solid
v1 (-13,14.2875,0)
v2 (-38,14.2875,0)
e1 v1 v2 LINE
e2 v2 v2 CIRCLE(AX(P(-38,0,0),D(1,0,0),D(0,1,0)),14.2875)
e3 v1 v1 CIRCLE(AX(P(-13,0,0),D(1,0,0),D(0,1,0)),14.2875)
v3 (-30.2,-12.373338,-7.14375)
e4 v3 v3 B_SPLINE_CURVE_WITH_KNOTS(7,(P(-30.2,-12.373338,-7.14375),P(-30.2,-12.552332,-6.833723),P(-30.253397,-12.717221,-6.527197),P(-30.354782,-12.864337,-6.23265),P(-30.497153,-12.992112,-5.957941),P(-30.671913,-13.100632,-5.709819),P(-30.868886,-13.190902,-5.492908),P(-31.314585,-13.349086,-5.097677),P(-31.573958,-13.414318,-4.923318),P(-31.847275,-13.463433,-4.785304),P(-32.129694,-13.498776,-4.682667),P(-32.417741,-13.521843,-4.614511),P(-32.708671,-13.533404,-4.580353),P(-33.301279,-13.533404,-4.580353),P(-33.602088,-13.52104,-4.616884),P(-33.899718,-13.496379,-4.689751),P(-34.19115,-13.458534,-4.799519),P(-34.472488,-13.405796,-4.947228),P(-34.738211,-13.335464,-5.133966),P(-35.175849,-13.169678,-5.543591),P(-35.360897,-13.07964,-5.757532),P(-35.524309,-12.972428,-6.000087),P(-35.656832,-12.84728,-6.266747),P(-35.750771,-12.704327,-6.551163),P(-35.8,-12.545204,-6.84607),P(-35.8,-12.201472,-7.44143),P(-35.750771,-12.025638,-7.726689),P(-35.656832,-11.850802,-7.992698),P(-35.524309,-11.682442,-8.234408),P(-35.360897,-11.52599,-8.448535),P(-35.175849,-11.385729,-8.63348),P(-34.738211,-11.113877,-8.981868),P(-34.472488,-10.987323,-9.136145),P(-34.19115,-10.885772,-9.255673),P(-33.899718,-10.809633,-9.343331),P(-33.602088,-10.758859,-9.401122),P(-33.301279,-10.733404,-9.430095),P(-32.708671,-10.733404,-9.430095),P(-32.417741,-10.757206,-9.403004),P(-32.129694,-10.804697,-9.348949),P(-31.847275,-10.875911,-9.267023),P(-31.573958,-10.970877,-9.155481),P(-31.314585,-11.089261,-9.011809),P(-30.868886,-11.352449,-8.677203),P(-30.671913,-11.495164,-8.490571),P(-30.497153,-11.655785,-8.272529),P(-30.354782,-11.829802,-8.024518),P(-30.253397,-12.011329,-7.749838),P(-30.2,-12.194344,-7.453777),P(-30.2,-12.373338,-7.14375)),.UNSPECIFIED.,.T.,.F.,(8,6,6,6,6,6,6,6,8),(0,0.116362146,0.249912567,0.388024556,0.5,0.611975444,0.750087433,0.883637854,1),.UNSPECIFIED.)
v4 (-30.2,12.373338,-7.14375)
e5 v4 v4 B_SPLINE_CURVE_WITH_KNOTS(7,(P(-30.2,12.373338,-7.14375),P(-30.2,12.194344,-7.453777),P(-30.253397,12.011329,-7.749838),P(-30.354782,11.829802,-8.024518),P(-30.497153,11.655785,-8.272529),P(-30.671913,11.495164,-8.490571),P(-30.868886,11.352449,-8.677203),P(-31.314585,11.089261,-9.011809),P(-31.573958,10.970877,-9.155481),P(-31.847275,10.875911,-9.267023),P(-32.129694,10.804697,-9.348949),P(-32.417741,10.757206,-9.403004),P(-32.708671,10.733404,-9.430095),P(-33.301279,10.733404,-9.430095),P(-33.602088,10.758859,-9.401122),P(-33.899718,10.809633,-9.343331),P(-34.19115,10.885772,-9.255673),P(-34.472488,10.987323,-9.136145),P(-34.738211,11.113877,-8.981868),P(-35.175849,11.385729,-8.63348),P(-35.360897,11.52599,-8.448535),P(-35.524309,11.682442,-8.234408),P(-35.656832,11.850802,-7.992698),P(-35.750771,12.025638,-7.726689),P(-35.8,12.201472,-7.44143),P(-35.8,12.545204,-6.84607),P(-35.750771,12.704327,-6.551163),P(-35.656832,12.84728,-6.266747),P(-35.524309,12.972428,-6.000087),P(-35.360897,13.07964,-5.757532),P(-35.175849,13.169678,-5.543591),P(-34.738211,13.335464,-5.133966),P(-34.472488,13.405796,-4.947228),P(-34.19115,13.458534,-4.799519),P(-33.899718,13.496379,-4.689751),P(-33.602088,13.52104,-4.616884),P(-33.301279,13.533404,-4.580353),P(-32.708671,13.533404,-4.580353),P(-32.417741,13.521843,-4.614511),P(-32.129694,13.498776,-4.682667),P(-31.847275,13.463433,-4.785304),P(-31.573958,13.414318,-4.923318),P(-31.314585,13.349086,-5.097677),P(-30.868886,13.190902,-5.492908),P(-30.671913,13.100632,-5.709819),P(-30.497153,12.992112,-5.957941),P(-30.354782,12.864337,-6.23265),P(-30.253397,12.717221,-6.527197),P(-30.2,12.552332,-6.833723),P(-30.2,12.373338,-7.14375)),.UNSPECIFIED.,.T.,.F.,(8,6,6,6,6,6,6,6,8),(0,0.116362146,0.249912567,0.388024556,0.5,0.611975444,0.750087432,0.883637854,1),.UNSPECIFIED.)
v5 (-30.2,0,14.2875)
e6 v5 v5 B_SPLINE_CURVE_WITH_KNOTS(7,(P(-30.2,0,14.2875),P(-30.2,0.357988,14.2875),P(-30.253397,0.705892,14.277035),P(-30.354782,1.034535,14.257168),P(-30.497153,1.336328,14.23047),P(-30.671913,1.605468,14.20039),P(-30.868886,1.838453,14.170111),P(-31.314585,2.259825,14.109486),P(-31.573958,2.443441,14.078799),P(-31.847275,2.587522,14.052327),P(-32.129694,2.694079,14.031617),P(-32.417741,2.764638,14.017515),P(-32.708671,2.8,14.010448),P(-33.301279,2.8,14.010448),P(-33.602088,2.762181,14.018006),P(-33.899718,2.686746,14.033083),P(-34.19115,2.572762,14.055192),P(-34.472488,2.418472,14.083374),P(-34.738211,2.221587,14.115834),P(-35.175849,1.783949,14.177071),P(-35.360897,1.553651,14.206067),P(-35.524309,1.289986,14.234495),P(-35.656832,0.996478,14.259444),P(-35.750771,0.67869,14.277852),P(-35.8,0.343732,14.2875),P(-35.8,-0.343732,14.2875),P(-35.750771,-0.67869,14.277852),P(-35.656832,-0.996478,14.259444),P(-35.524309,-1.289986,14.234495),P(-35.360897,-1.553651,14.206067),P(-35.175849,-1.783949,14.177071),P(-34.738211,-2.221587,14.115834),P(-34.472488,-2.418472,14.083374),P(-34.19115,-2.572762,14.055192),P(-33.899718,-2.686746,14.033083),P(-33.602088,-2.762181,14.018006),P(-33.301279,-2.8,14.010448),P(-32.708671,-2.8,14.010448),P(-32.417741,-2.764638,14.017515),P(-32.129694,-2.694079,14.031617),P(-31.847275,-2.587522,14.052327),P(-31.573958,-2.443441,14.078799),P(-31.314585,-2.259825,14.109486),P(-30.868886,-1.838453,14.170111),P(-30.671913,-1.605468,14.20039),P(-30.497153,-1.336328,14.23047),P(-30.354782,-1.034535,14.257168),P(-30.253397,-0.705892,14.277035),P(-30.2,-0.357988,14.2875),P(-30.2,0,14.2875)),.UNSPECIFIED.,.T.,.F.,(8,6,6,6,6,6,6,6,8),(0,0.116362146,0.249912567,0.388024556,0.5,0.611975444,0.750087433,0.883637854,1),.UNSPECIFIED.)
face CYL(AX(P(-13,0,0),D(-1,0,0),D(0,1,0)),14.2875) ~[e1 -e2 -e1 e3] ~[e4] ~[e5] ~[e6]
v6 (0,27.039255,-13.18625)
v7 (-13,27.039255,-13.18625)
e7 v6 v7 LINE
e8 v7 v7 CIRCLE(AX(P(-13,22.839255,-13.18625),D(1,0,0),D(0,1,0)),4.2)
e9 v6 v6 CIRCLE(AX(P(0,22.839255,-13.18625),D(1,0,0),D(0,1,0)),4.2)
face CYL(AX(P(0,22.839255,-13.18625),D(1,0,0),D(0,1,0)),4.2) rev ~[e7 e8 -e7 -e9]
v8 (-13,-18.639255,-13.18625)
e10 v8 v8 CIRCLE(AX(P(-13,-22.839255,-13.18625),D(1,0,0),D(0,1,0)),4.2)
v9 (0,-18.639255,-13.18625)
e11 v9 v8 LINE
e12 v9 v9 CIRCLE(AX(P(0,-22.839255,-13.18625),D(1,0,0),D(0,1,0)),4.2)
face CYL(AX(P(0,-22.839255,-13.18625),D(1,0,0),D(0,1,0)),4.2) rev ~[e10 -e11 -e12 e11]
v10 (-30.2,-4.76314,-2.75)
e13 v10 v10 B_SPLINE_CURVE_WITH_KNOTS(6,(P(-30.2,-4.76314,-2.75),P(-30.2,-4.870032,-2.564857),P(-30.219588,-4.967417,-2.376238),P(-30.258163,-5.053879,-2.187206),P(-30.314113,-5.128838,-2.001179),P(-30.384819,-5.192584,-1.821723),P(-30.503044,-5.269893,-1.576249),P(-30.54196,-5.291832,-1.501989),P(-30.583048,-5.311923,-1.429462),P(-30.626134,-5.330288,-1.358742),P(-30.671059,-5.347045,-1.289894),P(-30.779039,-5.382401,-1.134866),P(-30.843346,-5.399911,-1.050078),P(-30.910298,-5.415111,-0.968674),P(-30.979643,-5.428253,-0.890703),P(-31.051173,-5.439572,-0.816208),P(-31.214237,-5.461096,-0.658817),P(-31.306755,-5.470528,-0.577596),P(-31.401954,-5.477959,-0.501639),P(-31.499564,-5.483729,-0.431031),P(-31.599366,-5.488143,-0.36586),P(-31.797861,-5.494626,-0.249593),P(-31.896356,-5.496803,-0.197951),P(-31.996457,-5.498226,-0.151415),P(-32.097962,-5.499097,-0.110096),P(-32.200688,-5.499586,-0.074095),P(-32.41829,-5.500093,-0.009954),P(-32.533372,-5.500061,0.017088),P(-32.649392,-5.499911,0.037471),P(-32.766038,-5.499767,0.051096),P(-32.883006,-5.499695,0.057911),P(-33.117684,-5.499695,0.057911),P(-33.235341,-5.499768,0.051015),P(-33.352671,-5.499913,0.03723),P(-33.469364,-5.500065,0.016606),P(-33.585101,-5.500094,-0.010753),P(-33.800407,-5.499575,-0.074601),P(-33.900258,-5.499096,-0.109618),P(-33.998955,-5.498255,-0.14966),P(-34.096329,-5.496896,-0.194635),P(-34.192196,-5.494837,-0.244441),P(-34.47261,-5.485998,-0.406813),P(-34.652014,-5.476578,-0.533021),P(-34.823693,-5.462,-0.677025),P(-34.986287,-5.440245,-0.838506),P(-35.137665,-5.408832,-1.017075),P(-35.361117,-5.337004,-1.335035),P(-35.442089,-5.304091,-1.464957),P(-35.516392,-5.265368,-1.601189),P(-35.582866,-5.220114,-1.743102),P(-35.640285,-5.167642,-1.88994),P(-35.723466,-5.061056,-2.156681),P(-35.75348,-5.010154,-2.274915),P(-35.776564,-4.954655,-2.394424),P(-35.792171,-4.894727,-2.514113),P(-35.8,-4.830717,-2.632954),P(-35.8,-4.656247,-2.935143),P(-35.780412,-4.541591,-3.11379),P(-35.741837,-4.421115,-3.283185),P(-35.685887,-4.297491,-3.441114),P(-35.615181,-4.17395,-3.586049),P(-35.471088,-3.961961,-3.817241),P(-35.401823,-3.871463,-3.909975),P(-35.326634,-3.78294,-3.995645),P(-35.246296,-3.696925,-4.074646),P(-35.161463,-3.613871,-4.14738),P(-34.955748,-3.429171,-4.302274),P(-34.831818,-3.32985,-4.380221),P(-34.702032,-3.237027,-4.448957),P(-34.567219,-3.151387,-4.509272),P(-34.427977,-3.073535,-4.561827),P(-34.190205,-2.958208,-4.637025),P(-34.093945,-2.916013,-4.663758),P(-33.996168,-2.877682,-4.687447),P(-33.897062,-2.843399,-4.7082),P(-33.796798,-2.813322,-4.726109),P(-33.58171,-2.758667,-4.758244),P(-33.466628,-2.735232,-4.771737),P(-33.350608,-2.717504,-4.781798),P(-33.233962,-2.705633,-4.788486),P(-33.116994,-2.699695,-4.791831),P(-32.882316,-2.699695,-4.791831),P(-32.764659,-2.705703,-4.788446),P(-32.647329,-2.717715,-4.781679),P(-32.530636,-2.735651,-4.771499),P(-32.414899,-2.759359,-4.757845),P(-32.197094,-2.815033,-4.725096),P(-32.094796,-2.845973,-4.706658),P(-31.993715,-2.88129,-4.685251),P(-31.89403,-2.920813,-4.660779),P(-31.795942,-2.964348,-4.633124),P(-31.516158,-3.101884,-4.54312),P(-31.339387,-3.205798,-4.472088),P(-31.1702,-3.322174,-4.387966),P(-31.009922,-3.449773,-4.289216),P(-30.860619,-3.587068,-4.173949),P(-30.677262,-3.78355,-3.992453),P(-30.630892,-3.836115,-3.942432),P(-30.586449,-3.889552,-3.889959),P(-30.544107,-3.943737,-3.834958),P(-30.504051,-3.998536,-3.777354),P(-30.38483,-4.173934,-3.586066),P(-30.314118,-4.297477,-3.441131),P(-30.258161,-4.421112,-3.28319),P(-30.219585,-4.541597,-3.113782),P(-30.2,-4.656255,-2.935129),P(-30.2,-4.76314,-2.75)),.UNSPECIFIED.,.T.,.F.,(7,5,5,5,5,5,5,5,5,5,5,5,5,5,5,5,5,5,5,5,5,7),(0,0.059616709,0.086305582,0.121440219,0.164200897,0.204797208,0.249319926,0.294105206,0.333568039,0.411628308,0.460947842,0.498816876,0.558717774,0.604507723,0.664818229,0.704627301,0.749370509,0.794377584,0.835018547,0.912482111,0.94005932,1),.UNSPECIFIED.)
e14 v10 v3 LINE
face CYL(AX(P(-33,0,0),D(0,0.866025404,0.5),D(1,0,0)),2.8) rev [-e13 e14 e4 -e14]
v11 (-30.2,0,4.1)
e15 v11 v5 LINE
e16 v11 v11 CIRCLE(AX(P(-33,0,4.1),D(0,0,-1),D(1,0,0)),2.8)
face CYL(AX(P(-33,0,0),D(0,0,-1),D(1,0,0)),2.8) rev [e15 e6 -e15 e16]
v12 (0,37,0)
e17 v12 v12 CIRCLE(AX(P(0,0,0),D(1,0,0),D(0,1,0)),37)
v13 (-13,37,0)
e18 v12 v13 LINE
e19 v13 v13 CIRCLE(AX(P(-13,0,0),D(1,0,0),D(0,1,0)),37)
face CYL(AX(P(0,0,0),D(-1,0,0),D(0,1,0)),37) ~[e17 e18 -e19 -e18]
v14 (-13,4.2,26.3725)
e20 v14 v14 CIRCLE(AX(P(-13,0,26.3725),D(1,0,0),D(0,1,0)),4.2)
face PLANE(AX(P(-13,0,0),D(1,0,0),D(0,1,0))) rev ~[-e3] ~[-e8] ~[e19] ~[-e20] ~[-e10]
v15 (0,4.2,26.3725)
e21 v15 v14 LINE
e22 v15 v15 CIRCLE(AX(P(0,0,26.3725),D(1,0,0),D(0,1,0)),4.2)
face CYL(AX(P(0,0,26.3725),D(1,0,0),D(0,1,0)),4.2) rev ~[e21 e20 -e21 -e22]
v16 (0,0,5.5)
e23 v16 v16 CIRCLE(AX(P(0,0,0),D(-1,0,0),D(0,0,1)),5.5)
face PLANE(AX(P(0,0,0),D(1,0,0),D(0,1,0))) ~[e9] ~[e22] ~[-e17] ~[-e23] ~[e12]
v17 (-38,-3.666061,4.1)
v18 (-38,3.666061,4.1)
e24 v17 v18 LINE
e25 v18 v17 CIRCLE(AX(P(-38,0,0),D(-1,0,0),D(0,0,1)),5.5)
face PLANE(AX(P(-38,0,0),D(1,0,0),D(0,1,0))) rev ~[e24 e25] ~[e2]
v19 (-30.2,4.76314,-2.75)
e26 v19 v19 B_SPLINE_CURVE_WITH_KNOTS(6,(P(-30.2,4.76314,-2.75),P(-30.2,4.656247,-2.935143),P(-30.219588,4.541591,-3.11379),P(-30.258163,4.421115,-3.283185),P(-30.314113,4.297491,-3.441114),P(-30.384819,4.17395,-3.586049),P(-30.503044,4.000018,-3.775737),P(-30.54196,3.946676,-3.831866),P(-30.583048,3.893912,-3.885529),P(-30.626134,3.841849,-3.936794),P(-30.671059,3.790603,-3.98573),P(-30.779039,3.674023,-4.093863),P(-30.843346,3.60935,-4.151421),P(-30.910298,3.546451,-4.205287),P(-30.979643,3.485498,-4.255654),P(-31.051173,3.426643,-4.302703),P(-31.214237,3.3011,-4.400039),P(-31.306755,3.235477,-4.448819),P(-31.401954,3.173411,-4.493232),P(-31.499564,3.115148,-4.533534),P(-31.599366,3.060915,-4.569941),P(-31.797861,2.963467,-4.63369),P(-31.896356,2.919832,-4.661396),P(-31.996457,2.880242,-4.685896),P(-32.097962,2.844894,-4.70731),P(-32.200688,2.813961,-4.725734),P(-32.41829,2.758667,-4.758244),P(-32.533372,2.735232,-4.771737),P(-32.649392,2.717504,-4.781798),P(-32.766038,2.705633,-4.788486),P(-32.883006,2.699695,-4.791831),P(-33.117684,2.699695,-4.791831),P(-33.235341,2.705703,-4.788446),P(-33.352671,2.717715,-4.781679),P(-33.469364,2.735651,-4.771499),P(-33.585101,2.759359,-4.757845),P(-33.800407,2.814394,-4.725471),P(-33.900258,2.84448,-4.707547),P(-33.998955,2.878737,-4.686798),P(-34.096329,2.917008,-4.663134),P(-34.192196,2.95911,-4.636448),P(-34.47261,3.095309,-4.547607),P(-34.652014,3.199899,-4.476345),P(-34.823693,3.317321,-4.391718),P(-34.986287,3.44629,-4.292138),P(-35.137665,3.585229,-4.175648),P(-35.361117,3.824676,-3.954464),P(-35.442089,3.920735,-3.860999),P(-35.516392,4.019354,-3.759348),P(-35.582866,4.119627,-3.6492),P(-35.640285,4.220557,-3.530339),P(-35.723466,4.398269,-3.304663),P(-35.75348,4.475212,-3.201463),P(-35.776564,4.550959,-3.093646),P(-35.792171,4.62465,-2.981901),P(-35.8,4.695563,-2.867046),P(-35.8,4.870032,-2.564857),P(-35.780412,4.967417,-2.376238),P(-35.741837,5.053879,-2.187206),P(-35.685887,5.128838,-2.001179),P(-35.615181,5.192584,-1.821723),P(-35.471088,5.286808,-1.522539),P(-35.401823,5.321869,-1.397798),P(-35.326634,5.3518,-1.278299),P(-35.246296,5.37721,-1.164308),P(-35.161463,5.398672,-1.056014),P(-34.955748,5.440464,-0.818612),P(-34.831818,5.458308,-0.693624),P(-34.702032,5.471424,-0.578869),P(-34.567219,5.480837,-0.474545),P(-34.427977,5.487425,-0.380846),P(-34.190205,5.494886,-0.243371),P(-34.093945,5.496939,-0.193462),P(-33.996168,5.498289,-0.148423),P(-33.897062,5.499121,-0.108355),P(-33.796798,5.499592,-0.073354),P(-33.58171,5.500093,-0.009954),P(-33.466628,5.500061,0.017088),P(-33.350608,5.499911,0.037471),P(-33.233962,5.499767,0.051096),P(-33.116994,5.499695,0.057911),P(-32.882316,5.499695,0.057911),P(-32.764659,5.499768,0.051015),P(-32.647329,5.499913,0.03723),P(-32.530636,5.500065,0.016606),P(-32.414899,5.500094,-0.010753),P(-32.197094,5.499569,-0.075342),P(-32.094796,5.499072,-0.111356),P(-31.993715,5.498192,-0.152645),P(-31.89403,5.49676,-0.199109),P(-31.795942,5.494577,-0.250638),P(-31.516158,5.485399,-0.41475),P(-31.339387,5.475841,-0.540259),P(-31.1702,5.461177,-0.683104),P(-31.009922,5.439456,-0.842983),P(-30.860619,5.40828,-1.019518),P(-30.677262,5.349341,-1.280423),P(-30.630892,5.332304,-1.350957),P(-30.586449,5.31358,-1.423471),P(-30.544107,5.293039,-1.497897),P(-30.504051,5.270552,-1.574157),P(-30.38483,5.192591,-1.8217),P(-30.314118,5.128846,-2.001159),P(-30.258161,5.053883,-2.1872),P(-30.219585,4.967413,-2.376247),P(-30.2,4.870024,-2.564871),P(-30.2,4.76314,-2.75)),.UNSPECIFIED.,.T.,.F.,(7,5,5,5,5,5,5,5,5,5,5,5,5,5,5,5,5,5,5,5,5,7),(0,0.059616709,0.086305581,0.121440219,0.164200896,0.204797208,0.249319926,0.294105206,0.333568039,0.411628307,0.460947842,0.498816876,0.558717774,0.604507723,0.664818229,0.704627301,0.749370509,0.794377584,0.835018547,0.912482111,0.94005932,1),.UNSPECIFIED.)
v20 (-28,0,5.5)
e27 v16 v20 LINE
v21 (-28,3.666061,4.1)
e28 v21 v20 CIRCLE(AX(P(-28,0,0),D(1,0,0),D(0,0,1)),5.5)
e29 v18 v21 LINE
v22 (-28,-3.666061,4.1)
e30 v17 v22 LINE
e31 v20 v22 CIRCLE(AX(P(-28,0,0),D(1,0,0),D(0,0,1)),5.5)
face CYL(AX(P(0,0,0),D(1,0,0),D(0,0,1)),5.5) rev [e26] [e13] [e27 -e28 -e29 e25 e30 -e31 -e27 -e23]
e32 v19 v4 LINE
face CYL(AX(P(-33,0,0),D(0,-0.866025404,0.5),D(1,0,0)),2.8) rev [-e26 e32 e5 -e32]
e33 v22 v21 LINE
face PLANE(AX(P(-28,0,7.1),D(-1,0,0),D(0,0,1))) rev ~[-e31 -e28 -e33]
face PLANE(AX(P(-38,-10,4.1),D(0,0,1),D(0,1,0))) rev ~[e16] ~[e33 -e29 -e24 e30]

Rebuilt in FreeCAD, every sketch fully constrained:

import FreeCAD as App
import Part
import Sketcher


def add_polygon(sketch, points):
    """Adds a closed chain of lines whose ends are joined by coincident constraints."""
    first, n = sketch.GeometryCount, len(points)
    for a, b in zip(points, points[1:] + points[:1]):
        sketch.addGeometry(Part.LineSegment(App.Vector(*a, 0), App.Vector(*b, 0)), False)
    for i in range(n):
        sketch.addConstraint(Sketcher.Constraint("Coincident", first + i, 2, first + (i + 1) % n, 1))

doc = App.newDocument("Part")
body = doc.addObject("PartDesign::Body", "Body")

# Sketch on XY plane
sketch1 = body.newObject("Sketcher::SketchObject", "Sketch")
sketch1.AttachmentSupport = (doc.getObject("XY_Plane"), [""])
sketch1.MapMode = "FlatFace"
sketch1.addGeometry(Part.Circle(App.Vector(-33, 0, 0), App.Vector(0, 0, 1), 2.8), False)
sketch1.addConstraint(Sketcher.Constraint("PointOnObject", 0, 3, -1))
sketch1.addConstraint(Sketcher.Constraint("Diameter", 0, 5.6))
sketch1.addConstraint(Sketcher.Constraint("DistanceX", 0, 3, -1, 1, 33.0))
pad1 = body.newObject("PartDesign::Pad", "Pad")
pad1.Profile = sketch1
pad1.Length = 100
body2 = doc.addObject("PartDesign::Body", "Body001")
doc.recompute()

body2.BaseFeature = body
doc.recompute()

body3 = doc.addObject("PartDesign::Body", "Body002")
body3.BaseFeature = body
body3.Placement = App.Placement(App.Vector(0, 0, 0), App.Rotation(App.Vector(1, 0, 0), 120))
boolean = body2.newObject("PartDesign::Boolean", "Boolean")
boolean.Type = "Fuse"
boolean.addObjects([body3])
doc.recompute()

body.Placement = App.Placement(App.Vector(0, 0, 0), App.Rotation(App.Vector(1, 0, 0), 240))
boolean2 = body2.newObject("PartDesign::Boolean", "Boolean001")
boolean2.Type = "Fuse"
boolean2.addObjects([body])
body4 = doc.addObject("PartDesign::Body", "Body003")

# Sketch on XY plane
sketch2 = body4.newObject("Sketcher::SketchObject", "Sketch001")
sketch2.AttachmentSupport = (doc.getObject("XY_Plane003"), [""])
sketch2.MapMode = "FlatFace"
sketch2.addGeometry(Part.Circle(App.Vector(0, 0, 0), App.Vector(0, 0, 1), 5.5), False)
sketch2.addConstraint(Sketcher.Constraint("Coincident", 0, 3, -1, 1))
sketch2.addConstraint(Sketcher.Constraint("Diameter", 0, 11.0))
pad2 = body4.newObject("PartDesign::Pad", "Pad001")
pad2.Profile = sketch2
pad2.Length = 38
body5 = doc.addObject("PartDesign::Body", "Body004")
doc.recompute()

body4.Placement = App.Placement(App.Vector(0, 0, 0), App.Rotation(App.Vector(0, 1, 0), 270))
boolean3 = body5.newObject("PartDesign::Boolean", "Boolean002")
boolean3.Type = "Fuse"
boolean3.addObjects([body4])

# Sketch on YZ plane
sketch3 = body5.newObject("Sketcher::SketchObject", "Sketch002")
sketch3.AttachmentSupport = (doc.getObject("YZ_Plane004"), [""])
sketch3.MapMode = "FlatFace"
sketch3.AttachmentOffset = App.Placement(App.Vector(0, 0, -38), App.Rotation())
add_polygon(sketch3, [(10, 4.1), (-10, 4.1), (-10, 10.1), (10, 10.1)])  # lines 0-3
sketch3.addConstraint(Sketcher.Constraint("Horizontal", 0))
sketch3.addConstraint(Sketcher.Constraint("Vertical", 1))
sketch3.addConstraint(Sketcher.Constraint("Horizontal", 2))
sketch3.addConstraint(Sketcher.Constraint("Vertical", 3))
sketch3.addConstraint(Sketcher.Constraint("DistanceX", 0, 2, 0, 1, 20.0))
sketch3.addConstraint(Sketcher.Constraint("DistanceY", 1, 1, 1, 2, 6.0))
sketch3.addConstraint(Sketcher.Constraint("DistanceX", 0, 2, -1, 1, 10.0))
sketch3.addConstraint(Sketcher.Constraint("DistanceY", -1, 1, 0, 2, 4.1))
pocket1 = body5.newObject("PartDesign::Pocket", "Pocket")
pocket1.Profile = sketch3
pocket1.Length = 10
pocket1.Reversed = True
body6 = doc.addObject("PartDesign::Body", "Body005")
body6.AllowCompound = True

# Sketch on YZ plane
sketch4 = body6.newObject("Sketcher::SketchObject", "Sketch003")
sketch4.AttachmentSupport = (doc.getObject("YZ_Plane005"), [""])
sketch4.MapMode = "FlatFace"
sketch4.addGeometry(Part.Circle(App.Vector(0, 26.3725, 0), App.Vector(0, 0, 1), 4.2), False)
sketch4.addGeometry(Part.Circle(App.Vector(-22.839255, -13.18625, 0), App.Vector(0, 0, 1), 4.2), False)
sketch4.addGeometry(Part.Circle(App.Vector(22.839255, -13.18625, 0), App.Vector(0, 0, 1), 4.2), False)
sketch4.addConstraint(Sketcher.Constraint("Equal", 0, 1))
sketch4.addConstraint(Sketcher.Constraint("Equal", 1, 2))
sketch4.addConstraint(Sketcher.Constraint("Symmetric", 1, 3, 2, 3, -2))
sketch4.addConstraint(Sketcher.Constraint("PointOnObject", 0, 3, -2))
sketch4.addConstraint(Sketcher.Constraint("Diameter", 0, 8.4))
sketch4.addConstraint(Sketcher.Constraint("DistanceY", -1, 1, 0, 3, 26.3725))
sketch4.addConstraint(Sketcher.Constraint("DistanceY", 1, 3, -1, 1, 13.18625))
sketch4.addConstraint(Sketcher.Constraint("DistanceX", 1, 3, 2, 3, 45.67851))
pad3 = body6.newObject("PartDesign::Pad", "Pad002")
pad3.Profile = sketch4
pad3.Length = 38
pad3.Reversed = True
body7 = doc.addObject("PartDesign::Body", "Body006")

# Sketch on XY plane
sketch5 = body7.newObject("Sketcher::SketchObject", "Sketch004")
sketch5.AttachmentSupport = (doc.getObject("XY_Plane006"), [""])
sketch5.MapMode = "FlatFace"
add_polygon(sketch5, [(0, 37), (-13, 37), (-13, 14.2875), (-38, 14.2875), (-38, 0), (0, 0)])  # lines 0-5
sketch5.addConstraint(Sketcher.Constraint("Horizontal", 0))
sketch5.addConstraint(Sketcher.Constraint("Vertical", 1))
sketch5.addConstraint(Sketcher.Constraint("Horizontal", 2))
sketch5.addConstraint(Sketcher.Constraint("Vertical", 3))
sketch5.addConstraint(Sketcher.Constraint("Horizontal", 4))
sketch5.addConstraint(Sketcher.Constraint("Vertical", 5))
sketch5.addConstraint(Sketcher.Constraint("Coincident", 4, 2, -1, 1))
sketch5.addConstraint(Sketcher.Constraint("DistanceX", 0, 2, 0, 1, 13.0))
sketch5.addConstraint(Sketcher.Constraint("DistanceX", 2, 2, 2, 1, 25.0))
sketch5.addConstraint(Sketcher.Constraint("DistanceY", 5, 1, 5, 2, 37.0))
sketch5.addConstraint(Sketcher.Constraint("DistanceY", 1, 2, 1, 1, 22.7125))
revolution = body7.newObject("PartDesign::Revolution", "Revolution")
revolution.Profile = sketch5
revolution.ReferenceAxis = (sketch5, ["H_Axis"])
revolution.Angle = 360
doc.recompute()

boolean4 = body7.newObject("PartDesign::Boolean", "Boolean003")
boolean4.Type = "Cut"
boolean4.addObjects([body6])
doc.recompute()

boolean5 = body7.newObject("PartDesign::Boolean", "Boolean004")
boolean5.Type = "Cut"
boolean5.addObjects([body5])
doc.recompute()

boolean6 = body7.newObject("PartDesign::Boolean", "Boolean005")
boolean6.Type = "Cut"
boolean6.addObjects([body2])

doc.recompute()
